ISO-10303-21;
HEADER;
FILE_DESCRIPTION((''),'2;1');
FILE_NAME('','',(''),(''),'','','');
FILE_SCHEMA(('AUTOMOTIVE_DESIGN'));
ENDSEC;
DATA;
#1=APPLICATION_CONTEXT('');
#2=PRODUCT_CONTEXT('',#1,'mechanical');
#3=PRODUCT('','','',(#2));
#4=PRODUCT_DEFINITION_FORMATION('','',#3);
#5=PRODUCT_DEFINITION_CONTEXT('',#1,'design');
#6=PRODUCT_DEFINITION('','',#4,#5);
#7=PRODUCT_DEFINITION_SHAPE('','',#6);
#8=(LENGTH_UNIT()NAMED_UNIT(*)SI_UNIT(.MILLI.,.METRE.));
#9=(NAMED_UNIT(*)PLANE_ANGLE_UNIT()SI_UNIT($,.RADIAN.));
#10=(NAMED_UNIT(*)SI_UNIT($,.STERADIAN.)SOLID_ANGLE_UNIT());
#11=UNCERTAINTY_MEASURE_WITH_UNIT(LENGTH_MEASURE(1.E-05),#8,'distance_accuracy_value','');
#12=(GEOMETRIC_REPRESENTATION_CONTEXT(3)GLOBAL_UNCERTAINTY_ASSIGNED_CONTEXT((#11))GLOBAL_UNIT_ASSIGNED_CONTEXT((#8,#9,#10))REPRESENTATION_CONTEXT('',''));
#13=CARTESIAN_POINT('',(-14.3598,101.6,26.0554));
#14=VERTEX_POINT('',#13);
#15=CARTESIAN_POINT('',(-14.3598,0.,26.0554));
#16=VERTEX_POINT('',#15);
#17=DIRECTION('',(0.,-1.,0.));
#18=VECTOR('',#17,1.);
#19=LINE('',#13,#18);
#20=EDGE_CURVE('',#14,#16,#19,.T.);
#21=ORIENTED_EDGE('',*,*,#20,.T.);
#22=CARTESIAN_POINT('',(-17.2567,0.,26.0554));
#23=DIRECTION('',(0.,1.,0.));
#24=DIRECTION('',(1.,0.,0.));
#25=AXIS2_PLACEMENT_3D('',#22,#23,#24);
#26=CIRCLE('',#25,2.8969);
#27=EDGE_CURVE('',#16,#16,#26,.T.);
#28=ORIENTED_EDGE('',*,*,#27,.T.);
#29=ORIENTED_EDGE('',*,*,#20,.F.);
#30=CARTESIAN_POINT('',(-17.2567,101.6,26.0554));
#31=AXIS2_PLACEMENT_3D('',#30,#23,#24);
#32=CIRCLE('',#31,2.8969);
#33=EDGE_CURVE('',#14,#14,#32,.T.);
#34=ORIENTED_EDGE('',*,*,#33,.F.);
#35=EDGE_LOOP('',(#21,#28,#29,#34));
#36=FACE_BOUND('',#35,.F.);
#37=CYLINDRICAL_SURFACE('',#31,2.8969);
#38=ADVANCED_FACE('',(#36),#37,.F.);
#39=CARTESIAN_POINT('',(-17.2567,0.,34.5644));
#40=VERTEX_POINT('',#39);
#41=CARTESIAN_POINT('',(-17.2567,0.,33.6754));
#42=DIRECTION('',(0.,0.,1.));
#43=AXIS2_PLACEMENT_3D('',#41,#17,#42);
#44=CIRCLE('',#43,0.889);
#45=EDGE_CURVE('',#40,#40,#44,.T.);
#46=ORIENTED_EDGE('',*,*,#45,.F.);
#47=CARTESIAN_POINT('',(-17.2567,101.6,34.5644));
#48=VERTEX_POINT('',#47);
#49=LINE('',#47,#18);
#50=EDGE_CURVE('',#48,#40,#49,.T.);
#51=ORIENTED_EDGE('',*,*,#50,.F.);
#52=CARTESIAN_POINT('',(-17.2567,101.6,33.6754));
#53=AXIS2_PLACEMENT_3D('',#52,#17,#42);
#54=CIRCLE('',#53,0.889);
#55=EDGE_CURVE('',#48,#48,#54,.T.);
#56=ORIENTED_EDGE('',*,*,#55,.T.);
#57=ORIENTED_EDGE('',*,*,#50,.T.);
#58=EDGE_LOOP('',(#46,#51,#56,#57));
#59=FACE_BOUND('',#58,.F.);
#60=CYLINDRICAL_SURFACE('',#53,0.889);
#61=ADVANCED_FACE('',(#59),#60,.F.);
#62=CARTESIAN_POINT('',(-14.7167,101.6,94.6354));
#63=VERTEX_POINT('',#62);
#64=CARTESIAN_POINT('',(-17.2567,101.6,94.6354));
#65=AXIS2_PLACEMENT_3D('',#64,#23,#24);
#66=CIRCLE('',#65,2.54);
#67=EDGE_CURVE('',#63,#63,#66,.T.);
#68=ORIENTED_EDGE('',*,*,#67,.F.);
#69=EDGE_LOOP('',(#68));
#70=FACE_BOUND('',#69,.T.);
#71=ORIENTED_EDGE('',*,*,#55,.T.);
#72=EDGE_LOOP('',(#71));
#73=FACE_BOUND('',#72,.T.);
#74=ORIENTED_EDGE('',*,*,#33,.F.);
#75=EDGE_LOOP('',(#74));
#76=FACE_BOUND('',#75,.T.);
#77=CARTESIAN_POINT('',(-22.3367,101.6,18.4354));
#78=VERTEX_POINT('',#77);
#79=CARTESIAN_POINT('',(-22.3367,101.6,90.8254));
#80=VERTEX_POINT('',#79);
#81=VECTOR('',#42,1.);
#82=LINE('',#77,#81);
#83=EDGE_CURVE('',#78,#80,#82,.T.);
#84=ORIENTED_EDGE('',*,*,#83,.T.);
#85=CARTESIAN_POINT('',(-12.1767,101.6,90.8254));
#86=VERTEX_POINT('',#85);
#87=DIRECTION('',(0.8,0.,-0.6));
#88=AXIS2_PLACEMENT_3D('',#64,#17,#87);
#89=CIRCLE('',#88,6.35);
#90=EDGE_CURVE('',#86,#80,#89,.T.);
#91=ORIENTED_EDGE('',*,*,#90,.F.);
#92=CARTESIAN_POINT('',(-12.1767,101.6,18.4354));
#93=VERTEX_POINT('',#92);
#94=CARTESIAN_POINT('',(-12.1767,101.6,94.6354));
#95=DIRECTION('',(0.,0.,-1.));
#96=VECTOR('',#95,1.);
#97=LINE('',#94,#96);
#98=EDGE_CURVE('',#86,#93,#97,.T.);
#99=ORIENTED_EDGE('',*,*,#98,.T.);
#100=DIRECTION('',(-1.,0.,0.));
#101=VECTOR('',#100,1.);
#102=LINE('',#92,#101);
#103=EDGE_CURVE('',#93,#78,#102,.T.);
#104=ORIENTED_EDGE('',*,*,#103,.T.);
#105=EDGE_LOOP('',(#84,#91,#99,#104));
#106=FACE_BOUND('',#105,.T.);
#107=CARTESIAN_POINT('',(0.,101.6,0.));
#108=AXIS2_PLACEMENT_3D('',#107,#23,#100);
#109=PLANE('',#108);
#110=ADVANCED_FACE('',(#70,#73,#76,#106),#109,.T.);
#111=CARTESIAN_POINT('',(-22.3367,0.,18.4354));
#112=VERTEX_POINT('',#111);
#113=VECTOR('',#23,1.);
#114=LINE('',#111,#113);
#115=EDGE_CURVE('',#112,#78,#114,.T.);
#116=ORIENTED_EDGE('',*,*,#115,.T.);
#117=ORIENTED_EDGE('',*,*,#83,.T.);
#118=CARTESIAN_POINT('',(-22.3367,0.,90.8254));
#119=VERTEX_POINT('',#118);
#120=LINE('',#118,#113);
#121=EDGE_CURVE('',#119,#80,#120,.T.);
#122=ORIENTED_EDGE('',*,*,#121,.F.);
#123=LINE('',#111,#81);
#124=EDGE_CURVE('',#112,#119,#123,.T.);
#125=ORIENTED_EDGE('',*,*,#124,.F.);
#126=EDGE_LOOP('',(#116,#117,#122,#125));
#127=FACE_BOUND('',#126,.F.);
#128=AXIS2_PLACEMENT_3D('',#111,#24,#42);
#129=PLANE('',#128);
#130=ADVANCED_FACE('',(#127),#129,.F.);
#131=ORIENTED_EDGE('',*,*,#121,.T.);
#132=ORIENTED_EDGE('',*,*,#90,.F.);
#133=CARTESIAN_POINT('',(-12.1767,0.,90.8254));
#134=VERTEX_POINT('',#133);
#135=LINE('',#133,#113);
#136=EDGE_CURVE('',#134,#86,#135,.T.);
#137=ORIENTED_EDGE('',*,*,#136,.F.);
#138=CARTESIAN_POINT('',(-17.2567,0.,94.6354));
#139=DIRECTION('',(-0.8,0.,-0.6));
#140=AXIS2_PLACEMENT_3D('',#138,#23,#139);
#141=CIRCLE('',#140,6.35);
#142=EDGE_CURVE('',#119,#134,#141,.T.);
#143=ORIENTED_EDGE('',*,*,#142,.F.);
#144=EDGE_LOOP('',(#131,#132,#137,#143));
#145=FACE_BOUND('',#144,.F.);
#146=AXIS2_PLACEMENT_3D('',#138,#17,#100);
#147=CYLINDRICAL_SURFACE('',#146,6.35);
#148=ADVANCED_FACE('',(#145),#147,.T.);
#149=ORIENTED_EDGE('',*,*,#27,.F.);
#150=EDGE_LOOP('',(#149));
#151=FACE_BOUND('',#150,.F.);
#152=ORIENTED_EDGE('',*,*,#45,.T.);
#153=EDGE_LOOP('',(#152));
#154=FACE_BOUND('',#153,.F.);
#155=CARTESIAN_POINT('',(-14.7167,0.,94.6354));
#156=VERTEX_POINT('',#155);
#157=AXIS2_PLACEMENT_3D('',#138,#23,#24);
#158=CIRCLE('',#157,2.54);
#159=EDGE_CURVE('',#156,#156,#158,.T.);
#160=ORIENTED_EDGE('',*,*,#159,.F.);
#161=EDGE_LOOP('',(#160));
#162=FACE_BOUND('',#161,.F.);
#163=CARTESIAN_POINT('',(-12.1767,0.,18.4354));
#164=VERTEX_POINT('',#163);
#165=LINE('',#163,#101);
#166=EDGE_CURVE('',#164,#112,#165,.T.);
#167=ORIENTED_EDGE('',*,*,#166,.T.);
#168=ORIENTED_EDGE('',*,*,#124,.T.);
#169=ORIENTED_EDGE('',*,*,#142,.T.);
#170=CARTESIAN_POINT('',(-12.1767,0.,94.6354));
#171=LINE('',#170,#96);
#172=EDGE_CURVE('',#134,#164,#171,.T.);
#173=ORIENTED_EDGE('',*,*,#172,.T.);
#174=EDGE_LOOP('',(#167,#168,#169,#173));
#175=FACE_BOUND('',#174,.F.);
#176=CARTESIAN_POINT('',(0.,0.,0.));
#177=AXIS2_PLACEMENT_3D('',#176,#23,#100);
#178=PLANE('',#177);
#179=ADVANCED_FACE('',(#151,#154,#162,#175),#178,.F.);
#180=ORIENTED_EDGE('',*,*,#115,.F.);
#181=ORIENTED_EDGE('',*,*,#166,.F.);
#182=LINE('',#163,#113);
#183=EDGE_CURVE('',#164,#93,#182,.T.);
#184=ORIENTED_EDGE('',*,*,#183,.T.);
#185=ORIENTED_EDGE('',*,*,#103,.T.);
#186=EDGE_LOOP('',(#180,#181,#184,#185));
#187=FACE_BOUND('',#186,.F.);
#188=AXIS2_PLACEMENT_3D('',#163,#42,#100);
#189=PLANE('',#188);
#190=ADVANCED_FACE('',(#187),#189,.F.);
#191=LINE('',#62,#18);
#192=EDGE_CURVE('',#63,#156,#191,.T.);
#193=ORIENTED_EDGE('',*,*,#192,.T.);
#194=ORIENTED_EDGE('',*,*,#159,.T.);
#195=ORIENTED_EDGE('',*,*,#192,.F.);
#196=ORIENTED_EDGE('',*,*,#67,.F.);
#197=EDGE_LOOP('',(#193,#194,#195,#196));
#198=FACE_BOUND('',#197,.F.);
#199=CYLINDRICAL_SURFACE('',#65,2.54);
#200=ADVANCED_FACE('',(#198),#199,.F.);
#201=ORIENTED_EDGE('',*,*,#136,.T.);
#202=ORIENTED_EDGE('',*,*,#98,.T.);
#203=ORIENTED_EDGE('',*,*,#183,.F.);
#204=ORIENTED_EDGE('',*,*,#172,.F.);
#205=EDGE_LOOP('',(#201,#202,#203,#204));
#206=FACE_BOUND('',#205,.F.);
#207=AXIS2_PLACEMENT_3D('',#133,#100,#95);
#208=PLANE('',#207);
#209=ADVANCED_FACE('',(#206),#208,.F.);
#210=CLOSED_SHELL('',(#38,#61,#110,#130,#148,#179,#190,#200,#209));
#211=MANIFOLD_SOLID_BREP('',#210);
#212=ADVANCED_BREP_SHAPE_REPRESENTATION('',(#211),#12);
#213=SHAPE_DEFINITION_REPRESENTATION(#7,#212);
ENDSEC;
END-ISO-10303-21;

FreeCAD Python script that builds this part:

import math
import FreeCAD as App
import Part
import Sketcher

V = App.Vector
Q = App.Units.Quantity

doc = App.newDocument("Part")
body = doc.addObject("PartDesign::Body", "Body")

# Sketch on XZ plane
sketch1 = body.newObject("Sketcher::SketchObject", "Sketch")
sketch1.AttachmentSupport = (doc.getObject("XZ_Plane"), [""])
sketch1.MapMode = "FlatFace"
sketch1.addGeometry(Part.ArcOfCircle(Part.Circle(V(-17.2567, 94.6354, 0), V(0, 0, 1), 6.35), math.radians(-36.869898), math.radians(216.869898)), False)
sketch1.addGeometry(Part.LineSegment(V(-12.1767, 90.8254, 0), V(-12.1767, 18.4354, 0)), False)
sketch1.addGeometry(Part.LineSegment(V(-12.1767, 18.4354, 0), V(-22.3367, 18.4354, 0)), False)
sketch1.addGeometry(Part.LineSegment(V(-22.3367, 18.4354, 0), V(-22.3367, 90.8254, 0)), False)
sketch1.addConstraint(Sketcher.Constraint("Coincident", 0, 1, 1, 1))
sketch1.addConstraint(Sketcher.Constraint("Coincident", 1, 2, 2, 1))
sketch1.addConstraint(Sketcher.Constraint("Coincident", 2, 2, 3, 1))
sketch1.addConstraint(Sketcher.Constraint("Coincident", 3, 2, 0, 2))
sketch1.addConstraint(Sketcher.Constraint("Vertical", 1))
sketch1.addConstraint(Sketcher.Constraint("Horizontal", 2))
sketch1.addConstraint(Sketcher.Constraint("Vertical", 3))
sketch1.addConstraint(Sketcher.Constraint("Horizontal", 0, 1, 3, 2))
sketch1.addConstraint(Sketcher.Constraint("Radius", 0, Q("0.25 in")))
sketch1.addConstraint(Sketcher.Constraint("DistanceX", 2, 2, 2, 1, Q("0.4 in")))
sketch1.addConstraint(Sketcher.Constraint("DistanceY", 1, 2, 0, 3, Q("3 in")))
sketch1.addConstraint(Sketcher.Constraint("DistanceX", 0, 3, -1, 1, Q("0.6794 in")))
sketch1.addConstraint(Sketcher.Constraint("DistanceY", -1, 1, 0, 3, Q("3.7258 in")))
pad1 = body.newObject("PartDesign::Pad", "Pad")
pad1.Profile = sketch1
pad1.Length = Q("4 in")
pad1.Reversed = True

# Sketch on XZ plane
sketch2 = body.newObject("Sketcher::SketchObject", "Sketch001")
sketch2.AttachmentSupport = (doc.getObject("XZ_Plane"), [""])
sketch2.MapMode = "FlatFace"
sketch2.AttachmentOffset = App.Placement(V(0, 0, -4 * 25.4), App.Rotation())
sketch2.addGeometry(Part.Circle(V(-17.2567, 94.6354, 0), V(0, 0, 1), 2.54), False)
sketch2.addConstraint(Sketcher.Constraint("Diameter", 0, Q("0.2 in")))
sketch2.addConstraint(Sketcher.Constraint("DistanceX", 0, 3, -1, 1, Q("0.6794 in")))
sketch2.addConstraint(Sketcher.Constraint("DistanceY", -1, 1, 0, 3, Q("3.7258 in")))
pocket1 = body.newObject("PartDesign::Pocket", "Pocket")
pocket1.Profile = sketch2
pocket1.Length = Q("19 in")
pocket1.Reversed = True

# Sketch on XZ plane
sketch3 = body.newObject("Sketcher::SketchObject", "Sketch002")
sketch3.AttachmentSupport = (doc.getObject("XZ_Plane"), [""])
sketch3.MapMode = "FlatFace"
sketch3.AttachmentOffset = App.Placement(V(0, 0, -4 * 25.4), App.Rotation())
sketch3.addGeometry(Part.Circle(V(-17.2567, 26.0554, 0), V(0, 0, 1), 2.8969), False)
sketch3.addConstraint(Sketcher.Constraint("Diameter", 0, Q("0.2281 in")))
sketch3.addConstraint(Sketcher.Constraint("DistanceX", 0, 3, -1, 1, Q("0.6794 in")))
sketch3.addConstraint(Sketcher.Constraint("DistanceY", -1, 1, 0, 3, Q("1.0258 in")))
pocket2 = body.newObject("PartDesign::Pocket", "Pocket001")
pocket2.Profile = sketch3
pocket2.Length = Q("19 in")
pocket2.Reversed = True

# Sketch on XZ plane
sketch4 = body.newObject("Sketcher::SketchObject", "Sketch003")
sketch4.AttachmentSupport = (doc.getObject("XZ_Plane"), [""])
sketch4.MapMode = "FlatFace"
sketch4.AttachmentOffset = App.Placement(V(0, 0, -4 * 25.4), App.Rotation())
sketch4.addGeometry(Part.Circle(V(-17.2567, 33.6754, 0), V(0, 0, 1), 0.889), False)
sketch4.addConstraint(Sketcher.Constraint("Diameter", 0, Q("0.07 in")))
sketch4.addConstraint(Sketcher.Constraint("DistanceX", 0, 3, -1, 1, Q("0.6794 in")))
sketch4.addConstraint(Sketcher.Constraint("DistanceY", -1, 1, 0, 3, Q("1.3258 in")))
doc.recompute()
hole = body.newObject("PartDesign::Hole", "Hole")
hole.Profile = sketch4
hole.ThreadType = "None"
hole.Diameter = Q("0.07 in")
hole.DepthType = "ThroughAll"
hole.Reversed = True

doc.recompute()
